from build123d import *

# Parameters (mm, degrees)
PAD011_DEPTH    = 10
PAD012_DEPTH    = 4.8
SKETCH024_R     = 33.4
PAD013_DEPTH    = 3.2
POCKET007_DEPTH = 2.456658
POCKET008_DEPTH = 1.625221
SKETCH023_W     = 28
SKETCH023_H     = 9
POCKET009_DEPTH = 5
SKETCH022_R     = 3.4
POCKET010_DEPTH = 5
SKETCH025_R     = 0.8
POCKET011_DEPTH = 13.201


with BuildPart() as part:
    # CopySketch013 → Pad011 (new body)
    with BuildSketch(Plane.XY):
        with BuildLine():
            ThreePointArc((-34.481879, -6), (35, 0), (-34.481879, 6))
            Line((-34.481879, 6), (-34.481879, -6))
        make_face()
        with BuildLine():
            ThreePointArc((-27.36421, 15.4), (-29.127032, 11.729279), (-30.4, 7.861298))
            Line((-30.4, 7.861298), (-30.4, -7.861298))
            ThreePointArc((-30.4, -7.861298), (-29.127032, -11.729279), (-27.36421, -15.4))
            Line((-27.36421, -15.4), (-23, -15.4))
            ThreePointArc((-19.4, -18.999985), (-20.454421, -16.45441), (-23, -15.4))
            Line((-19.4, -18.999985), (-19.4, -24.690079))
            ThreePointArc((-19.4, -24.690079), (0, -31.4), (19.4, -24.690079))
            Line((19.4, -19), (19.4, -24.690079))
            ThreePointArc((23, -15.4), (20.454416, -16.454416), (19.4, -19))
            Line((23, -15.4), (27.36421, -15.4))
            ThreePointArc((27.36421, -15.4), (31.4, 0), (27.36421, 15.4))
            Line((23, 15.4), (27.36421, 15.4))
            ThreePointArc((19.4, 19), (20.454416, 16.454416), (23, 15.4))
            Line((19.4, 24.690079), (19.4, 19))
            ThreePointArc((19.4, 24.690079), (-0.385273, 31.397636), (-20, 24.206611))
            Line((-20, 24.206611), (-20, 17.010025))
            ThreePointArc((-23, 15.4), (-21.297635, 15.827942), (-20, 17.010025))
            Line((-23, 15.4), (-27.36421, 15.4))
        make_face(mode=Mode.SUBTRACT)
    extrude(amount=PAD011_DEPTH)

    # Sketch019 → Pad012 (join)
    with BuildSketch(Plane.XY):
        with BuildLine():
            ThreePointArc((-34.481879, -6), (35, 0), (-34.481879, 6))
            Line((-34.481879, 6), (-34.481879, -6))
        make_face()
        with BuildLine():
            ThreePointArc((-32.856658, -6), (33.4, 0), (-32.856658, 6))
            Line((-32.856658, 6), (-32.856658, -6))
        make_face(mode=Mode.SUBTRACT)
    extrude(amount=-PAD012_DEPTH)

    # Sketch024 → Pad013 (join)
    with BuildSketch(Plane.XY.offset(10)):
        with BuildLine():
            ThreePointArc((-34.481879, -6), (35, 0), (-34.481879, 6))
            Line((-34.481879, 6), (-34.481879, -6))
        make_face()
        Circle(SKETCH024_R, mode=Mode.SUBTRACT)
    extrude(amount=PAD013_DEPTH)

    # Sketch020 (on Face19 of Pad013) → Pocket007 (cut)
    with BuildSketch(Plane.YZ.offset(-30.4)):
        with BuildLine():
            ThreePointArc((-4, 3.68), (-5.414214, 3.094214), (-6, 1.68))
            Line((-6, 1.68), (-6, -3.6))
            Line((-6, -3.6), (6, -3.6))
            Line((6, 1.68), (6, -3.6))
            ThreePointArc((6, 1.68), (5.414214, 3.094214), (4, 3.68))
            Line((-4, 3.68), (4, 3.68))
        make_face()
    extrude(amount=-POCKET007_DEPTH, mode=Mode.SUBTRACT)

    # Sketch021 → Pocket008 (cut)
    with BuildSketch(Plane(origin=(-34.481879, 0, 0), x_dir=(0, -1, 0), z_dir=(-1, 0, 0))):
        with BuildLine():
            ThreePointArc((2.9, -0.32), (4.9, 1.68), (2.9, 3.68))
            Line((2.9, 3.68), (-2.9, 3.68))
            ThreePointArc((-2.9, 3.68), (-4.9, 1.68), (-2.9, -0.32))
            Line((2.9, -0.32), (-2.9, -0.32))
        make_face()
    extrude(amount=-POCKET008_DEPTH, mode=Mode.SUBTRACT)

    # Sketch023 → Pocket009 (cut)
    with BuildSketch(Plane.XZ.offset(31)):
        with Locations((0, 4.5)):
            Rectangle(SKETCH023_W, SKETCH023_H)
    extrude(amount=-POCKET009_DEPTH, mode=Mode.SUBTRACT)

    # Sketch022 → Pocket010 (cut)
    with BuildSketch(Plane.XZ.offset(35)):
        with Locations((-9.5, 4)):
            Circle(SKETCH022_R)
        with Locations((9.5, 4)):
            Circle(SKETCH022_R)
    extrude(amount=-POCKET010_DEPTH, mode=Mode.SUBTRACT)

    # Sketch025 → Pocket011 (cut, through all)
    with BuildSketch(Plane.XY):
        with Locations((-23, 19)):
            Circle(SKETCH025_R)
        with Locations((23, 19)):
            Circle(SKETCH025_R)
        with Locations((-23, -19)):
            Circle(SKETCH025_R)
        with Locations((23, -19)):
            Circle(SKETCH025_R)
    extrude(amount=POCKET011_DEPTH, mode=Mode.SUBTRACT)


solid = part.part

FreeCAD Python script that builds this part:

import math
import FreeCAD as App
import Part
import Sketcher
from FreeCAD import Vector

doc = App.newDocument("Part")
body = doc.addObject("PartDesign::Body", "Body")

sketch1 = body.newObject("Sketcher::SketchObject", "Sketch")
sketch1.AttachmentSupport = (doc.getObject("XY_Plane"), [""])
sketch1.MapMode = "FlatFace"
sketch1.addGeometry(Part.ArcOfCircle(Part.Circle(Vector(0, 0, 0), Vector(0, 0, 1), 35), math.radians(-170.12911), math.radians(170.12911)), False)
sketch1.addGeometry(Part.LineSegment(Vector(-34.481879, 6, 0), Vector(-34.481879, -6, 0)), False)
sketch1.addGeometry(Part.ArcOfCircle(Part.Circle(Vector(0.000032, -0.000014, 0), Vector(0, 0, 1), 31.400035), math.radians(150.630115), math.radians(165.501185)), False)
sketch1.addGeometry(Part.LineSegment(Vector(-27.36421, 15.4, 0), Vector(-23, 15.4, 0)), False)
sketch1.addGeometry(Part.ArcOfCircle(Part.Circle(Vector(-23.000001, 19.000002, 0), Vector(0, 0, 1), 3.600002), math.radians(-89.999986), math.radians(-33.557327)), False)
sketch1.addGeometry(Part.LineSegment(Vector(-20, 17.010025, 0), Vector(-20, 24.206611, 0)), False)
sketch1.addGeometry(Part.ArcOfCircle(Part.Circle(Vector(0, -0.000002, 0), Vector(0, 0, 1), 31.400002), math.radians(51.84184), math.radians(129.564216)), False)
sketch1.addGeometry(Part.LineSegment(Vector(19.4, 24.690079, 0), Vector(19.4, 19, 0)), False)
sketch1.addGeometry(Part.ArcOfCircle(Part.Circle(Vector(23.000001, 19.000001, 0), Vector(0, 0, 1), 3.600001), math.radians(-179.999978), math.radians(-90.000022)), False)
sketch1.addGeometry(Part.LineSegment(Vector(23, 15.4, 0), Vector(27.36421, 15.4, 0)), False)
sketch1.addGeometry(Part.ArcOfCircle(Part.Circle(Vector(0.000001, 0, 0), Vector(0, 0, 1), 31.399999), math.radians(-29.369892), math.radians(29.369892)), False)
sketch1.addGeometry(Part.LineSegment(Vector(27.36421, -15.4, 0), Vector(23, -15.4, 0)), False)
sketch1.addGeometry(Part.ArcOfCircle(Part.Circle(Vector(23.000001, -19.000001, 0), Vector(0, 0, 1), 3.600001), math.radians(90.000022), math.radians(179.999978)), False)
sketch1.addGeometry(Part.LineSegment(Vector(19.4, -19, 0), Vector(19.4, -24.690079, 0)), False)
sketch1.addGeometry(Part.ArcOfCircle(Part.Circle(Vector(0, 0, 0), Vector(0, 0, 1), 31.4), math.radians(-128.158162), math.radians(-51.841838)), False)
sketch1.addGeometry(Part.LineSegment(Vector(-19.4, -24.690079, 0), Vector(-19.4, -18.999985, 0)), False)
sketch1.addGeometry(Part.ArcOfCircle(Part.Circle(Vector(-23, -19, 0), Vector(0, 0, 1), 3.6), math.radians(0.000234), math.radians(90.000005)), False)
sketch1.addGeometry(Part.LineSegment(Vector(-23, -15.4, 0), Vector(-27.36421, -15.4, 0)), False)
sketch1.addGeometry(Part.ArcOfCircle(Part.Circle(Vector(0.000032, 0.000014, 0), Vector(0, 0, 1), 31.400035), math.radians(-165.501185), math.radians(-150.630115)), False)
sketch1.addGeometry(Part.LineSegment(Vector(-30.4, -7.861298, 0), Vector(-30.4, 7.861298, 0)), False)
sketch1.addConstraint(Sketcher.Constraint("Coincident", 0, 1, 1, 2))
sketch1.addConstraint(Sketcher.Constraint("Coincident", 1, 1, 0, 2))
sketch1.addConstraint(Sketcher.Constraint("Coincident", 2, 1, 3, 1))
sketch1.addConstraint(Sketcher.Constraint("Tangent", 3, 2, 4, 1))
sketch1.addConstraint(Sketcher.Constraint("Coincident", 4, 2, 5, 1))
sketch1.addConstraint(Sketcher.Constraint("Coincident", 5, 2, 6, 2))
sketch1.addConstraint(Sketcher.Constraint("Coincident", 6, 1, 7, 1))
sketch1.addConstraint(Sketcher.Constraint("Tangent", 7, 2, 8, 1))
sketch1.addConstraint(Sketcher.Constraint("Tangent", 8, 2, 9, 1))
sketch1.addConstraint(Sketcher.Constraint("Coincident", 9, 2, 10, 2))
sketch1.addConstraint(Sketcher.Constraint("Coincident", 10, 1, 11, 1))
sketch1.addConstraint(Sketcher.Constraint("Tangent", 11, 2, 12, 1))
sketch1.addConstraint(Sketcher.Constraint("Tangent", 12, 2, 13, 1))
sketch1.addConstraint(Sketcher.Constraint("Coincident", 13, 2, 14, 2))
sketch1.addConstraint(Sketcher.Constraint("Coincident", 14, 1, 15, 1))
sketch1.addConstraint(Sketcher.Constraint("Coincident", 15, 2, 16, 1))
sketch1.addConstraint(Sketcher.Constraint("Tangent", 16, 2, 17, 1))
sketch1.addConstraint(Sketcher.Constraint("Coincident", 17, 2, 18, 2))
sketch1.addConstraint(Sketcher.Constraint("Coincident", 18, 1, 19, 1))
sketch1.addConstraint(Sketcher.Constraint("Coincident", 19, 2, 2, 2))
sketch1.addConstraint(Sketcher.Constraint("Vertical", 1))
sketch1.addConstraint(Sketcher.Constraint("Horizontal", 3))
sketch1.addConstraint(Sketcher.Constraint("Vertical", 5))
sketch1.addConstraint(Sketcher.Constraint("Vertical", 7))
sketch1.addConstraint(Sketcher.Constraint("Horizontal", 9))
sketch1.addConstraint(Sketcher.Constraint("Horizontal", 11))
sketch1.addConstraint(Sketcher.Constraint("Vertical", 13))
sketch1.addConstraint(Sketcher.Constraint("Vertical", 15))
sketch1.addConstraint(Sketcher.Constraint("Horizontal", 17))
sketch1.addConstraint(Sketcher.Constraint("Vertical", 19))
sketch1.addConstraint(Sketcher.Constraint("Coincident", 0, 3, -1, 1))
sketch1.addConstraint(Sketcher.Constraint("Coincident", 6, 3, -1, 1))
sketch1.addConstraint(Sketcher.Constraint("Coincident", 10, 3, -1, 1))
sketch1.addConstraint(Sketcher.Constraint("Coincident", 14, 3, -1, 1))
sketch1.addConstraint(Sketcher.Constraint("Equal", 4, 8))
sketch1.addConstraint(Sketcher.Constraint("Equal", 8, 12))
sketch1.addConstraint(Sketcher.Constraint("Equal", 10, 14))
sketch1.addConstraint(Sketcher.Constraint("Equal", 12, 16))
sketch1.addConstraint(Sketcher.Constraint("Equal", 2, 18))
sketch1.addConstraint(Sketcher.Constraint("Symmetric", 4, 3, 12, 3, -1, 1))
sketch1.addConstraint(Sketcher.Constraint("Symmetric", 8, 3, 16, 3, -1, 1))
sketch1.addConstraint(Sketcher.Constraint("Symmetric", 4, 3, 8, 3, -2))
sketch1.addConstraint(Sketcher.Constraint("Symmetric", 2, 3, 18, 3, -1))
sketch1.addConstraint(Sketcher.Constraint("Equal", 3, 9))
sketch1.addConstraint(Sketcher.Constraint("Equal", 7, 13))
sketch1.addConstraint(Sketcher.Constraint("Radius", 0, 35.0))
sketch1.addConstraint(Sketcher.Constraint("Radius", 4, 3.600002))
sketch1.addConstraint(Sketcher.Constraint("Radius", 6, 31.400002))
sketch1.addConstraint(Sketcher.Constraint("DistanceY", 1, 2, 1, 1, 12.0))
sketch1.addConstraint(Sketcher.Constraint("DistanceX", 4, 3, -1, 1, 23.000001))
sketch1.addConstraint(Sketcher.Constraint("DistanceY", -1, 1, 4, 3, 19.000002))
sketch1.addConstraint(Sketcher.Constraint("DistanceX", 4, 2, -1, 1, 20.0))
sketch1.addConstraint(Sketcher.Constraint("DistanceX", 18, 1, -1, 1, 30.4))
sketch1.addConstraint(Sketcher.Constraint("Radius", 2, 31.400035))
sketch1.addConstraint(Sketcher.Constraint("DistanceY", 16, 3, 18, 1, 11.138702))
sketch1.addConstraint(Sketcher.Constraint("DistanceY", 15, 1, 15, 2, 5.690094))
pad1 = body.newObject("PartDesign::Pad", "Pad")
pad1.Profile = sketch1
pad1.Length = 10

sketch2 = body.newObject("Sketcher::SketchObject", "Sketch001")
sketch2.AttachmentSupport = (doc.getObject("XY_Plane"), [""])
sketch2.MapMode = "FlatFace"
sketch2.addGeometry(Part.ArcOfCircle(Part.Circle(Vector(0, 0, 0), Vector(0, 0, 1), 35), math.radians(-170.12911), math.radians(170.12911)), False)
sketch2.addGeometry(Part.LineSegment(Vector(-34.481879, 6, 0), Vector(-34.481879, -6, 0)), False)
sketch2.addGeometry(Part.ArcOfCircle(Part.Circle(Vector(0, 0, 0), Vector(0, 0, 1), 33.4), math.radians(-169.651167), math.radians(169.651167)), False)
sketch2.addGeometry(Part.LineSegment(Vector(-32.856658, -6, 0), Vector(-32.856658, 6, 0)), False)
sketch2.addConstraint(Sketcher.Constraint("Coincident", 0, 1, 1, 2))
sketch2.addConstraint(Sketcher.Constraint("Coincident", 1, 1, 0, 2))
sketch2.addConstraint(Sketcher.Constraint("Coincident", 2, 1, 3, 1))
sketch2.addConstraint(Sketcher.Constraint("Coincident", 3, 2, 2, 2))
sketch2.addConstraint(Sketcher.Constraint("Vertical", 1))
sketch2.addConstraint(Sketcher.Constraint("Vertical", 3))
sketch2.addConstraint(Sketcher.Constraint("Coincident", 0, 3, -1, 1))
sketch2.addConstraint(Sketcher.Constraint("Coincident", 2, 3, -1, 1))
sketch2.addConstraint(Sketcher.Constraint("Horizontal", 0, 1, 2, 1))
sketch2.addConstraint(Sketcher.Constraint("Radius", 0, 35.0))
sketch2.addConstraint(Sketcher.Constraint("Radius", 2, 33.4))
sketch2.addConstraint(Sketcher.Constraint("DistanceY", 1, 2, 1, 1, 12.0))
pad2 = body.newObject("PartDesign::Pad", "Pad001")
pad2.Profile = sketch2
pad2.Length = 4.8
pad2.Reversed = True

sketch3 = body.newObject("Sketcher::SketchObject", "Sketch002")
sketch3.AttachmentSupport = (doc.getObject("XY_Plane"), [""])
sketch3.MapMode = "FlatFace"
sketch3.AttachmentOffset = App.Placement(Vector(0, 0, 10), App.Rotation())
sketch3.addGeometry(Part.ArcOfCircle(Part.Circle(Vector(0, 0, 0), Vector(0, 0, 1), 35), math.radians(-170.12911), math.radians(170.12911)), False)
sketch3.addGeometry(Part.LineSegment(Vector(-34.481879, 6, 0), Vector(-34.481879, -6, 0)), False)
sketch3.addGeometry(Part.Circle(Vector(0, 0, 0), Vector(0, 0, 1), 33.4), False)
sketch3.addConstraint(Sketcher.Constraint("Coincident", 0, 1, 1, 2))
sketch3.addConstraint(Sketcher.Constraint("Coincident", 1, 1, 0, 2))
sketch3.addConstraint(Sketcher.Constraint("Vertical", 1))
sketch3.addConstraint(Sketcher.Constraint("Coincident", 0, 3, -1, 1))
sketch3.addConstraint(Sketcher.Constraint("Coincident", 2, 3, -1, 1))
sketch3.addConstraint(Sketcher.Constraint("Radius", 0, 35.0))
sketch3.addConstraint(Sketcher.Constraint("Diameter", 2, 66.8))
sketch3.addConstraint(Sketcher.Constraint("DistanceY", 1, 2, 1, 1, 12.0))
pad3 = body.newObject("PartDesign::Pad", "Pad002")
pad3.Profile = sketch3
pad3.Length = 3.2

sketch4 = body.newObject("Sketcher::SketchObject", "Sketch003")
sketch4.AttachmentSupport = (doc.getObject("YZ_Plane"), [""])
sketch4.MapMode = "FlatFace"
sketch4.AttachmentOffset = App.Placement(Vector(0, 0, -30.4), App.Rotation())
sketch4.addGeometry(Part.ArcOfCircle(Part.Circle(Vector(-4.000001, 1.680001, 0), Vector(0, 0, 1), 1.999999), math.radians(89.999957), math.radians(180.000043)), False)
sketch4.addGeometry(Part.LineSegment(Vector(-6, 1.68, 0), Vector(-6, -3.6, 0)), False)
sketch4.addGeometry(Part.LineSegment(Vector(-6, -3.6, 0), Vector(6, -3.6, 0)), False)
sketch4.addGeometry(Part.LineSegment(Vector(6, -3.6, 0), Vector(6, 1.68, 0)), False)
sketch4.addGeometry(Part.ArcOfCircle(Part.Circle(Vector(4.000001, 1.680001, 0), Vector(0, 0, 1), 1.999999), math.radians(-0.000043), math.radians(90.000043)), False)
sketch4.addGeometry(Part.LineSegment(Vector(4, 3.68, 0), Vector(-4, 3.68, 0)), False)
sketch4.addConstraint(Sketcher.Constraint("Tangent", 0, 2, 1, 1))
sketch4.addConstraint(Sketcher.Constraint("Coincident", 1, 2, 2, 1))
sketch4.addConstraint(Sketcher.Constraint("Coincident", 2, 2, 3, 1))
sketch4.addConstraint(Sketcher.Constraint("Tangent", 3, 2, 4, 1))
sketch4.addConstraint(Sketcher.Constraint("Tangent", 4, 2, 5, 1))
sketch4.addConstraint(Sketcher.Constraint("Tangent", 5, 2, 0, 1))
sketch4.addConstraint(Sketcher.Constraint("Vertical", 1))
sketch4.addConstraint(Sketcher.Constraint("Horizontal", 2))
sketch4.addConstraint(Sketcher.Constraint("Vertical", 3))
sketch4.addConstraint(Sketcher.Constraint("Horizontal", 5))
sketch4.addConstraint(Sketcher.Constraint("Equal", 0, 4))
sketch4.addConstraint(Sketcher.Constraint("Radius", 0, 1.999999))
sketch4.addConstraint(Sketcher.Constraint("DistanceX", 2, 1, 2, 2, 12.0))
sketch4.addConstraint(Sketcher.Constraint("DistanceX", 0, 3, -1, 1, 4.000001))
sketch4.addConstraint(Sketcher.Constraint("DistanceY", 1, 2, 1, 1, 5.28))
sketch4.addConstraint(Sketcher.Constraint("DistanceY", 1, 2, -1, 1, 3.6))
pocket1 = body.newObject("PartDesign::Pocket", "Pocket")
pocket1.Profile = sketch4
pocket1.Length = 2.456658

sketch5 = body.newObject("Sketcher::SketchObject", "Sketch004")
sketch5.AttachmentSupport = (doc.getObject("YZ_Plane"), [""])
sketch5.MapMode = "FlatFace"
sketch5.AttachmentOffset = App.Placement(Vector(0, 0, -34.481879), App.Rotation())
sketch5.addGeometry(Part.ArcOfCircle(Part.Circle(Vector(-2.9, 1.68, 0), Vector(0, 0, 1), 2), math.radians(90), math.radians(270)), False)
sketch5.addGeometry(Part.LineSegment(Vector(-2.9, 3.68, 0), Vector(2.9, 3.68, 0)), False)
sketch5.addGeometry(Part.ArcOfCircle(Part.Circle(Vector(2.9, 1.68, 0), Vector(0, 0, 1), 2), math.radians(-90), math.radians(90)), False)
sketch5.addGeometry(Part.LineSegment(Vector(2.9, -0.32, 0), Vector(-2.9, -0.32, 0)), False)
sketch5.addConstraint(Sketcher.Constraint("Tangent", 0, 1, 1, 1))
sketch5.addConstraint(Sketcher.Constraint("Tangent", 1, 2, 2, 2))
sketch5.addConstraint(Sketcher.Constraint("Tangent", 2, 1, 3, 1))
sketch5.addConstraint(Sketcher.Constraint("Tangent", 3, 2, 0, 2))
sketch5.addConstraint(Sketcher.Constraint("Horizontal", 1))
sketch5.addConstraint(Sketcher.Constraint("Horizontal", 3))
sketch5.addConstraint(Sketcher.Constraint("Radius", 0, 2.0))
sketch5.addConstraint(Sketcher.Constraint("DistanceX", 1, 1, 1, 2, 5.8))
sketch5.addConstraint(Sketcher.Constraint("DistanceX", 0, 3, -1, 1, 2.9))
sketch5.addConstraint(Sketcher.Constraint("DistanceY", -1, 1, 0, 3, 1.68))
pocket2 = body.newObject("PartDesign::Pocket", "Pocket001")
pocket2.Profile = sketch5
pocket2.Length = 1.625221
pocket2.Reversed = True

sketch6 = body.newObject("Sketcher::SketchObject", "Sketch005")
sketch6.AttachmentSupport = (doc.getObject("XZ_Plane"), [""])
sketch6.MapMode = "FlatFace"
sketch6.AttachmentOffset = App.Placement(Vector(0, 0, 31), App.Rotation())
sketch6.addGeometry(Part.LineSegment(Vector(-14, 9, 0), Vector(-14, 0, 0)), False)
sketch6.addGeometry(Part.LineSegment(Vector(-14, 0, 0), Vector(14, 0, 0)), False)
sketch6.addGeometry(Part.LineSegment(Vector(14, 0, 0), Vector(14, 9, 0)), False)
sketch6.addGeometry(Part.LineSegment(Vector(14, 9, 0), Vector(-14, 9, 0)), False)
sketch6.addConstraint(Sketcher.Constraint("Coincident", 0, 2, 1, 1))
sketch6.addConstraint(Sketcher.Constraint("Coincident", 1, 2, 2, 1))
sketch6.addConstraint(Sketcher.Constraint("Coincident", 2, 2, 3, 1))
sketch6.addConstraint(Sketcher.Constraint("Coincident", 3, 2, 0, 1))
sketch6.addConstraint(Sketcher.Constraint("Vertical", 0))
sketch6.addConstraint(Sketcher.Constraint("Horizontal", 1))
sketch6.addConstraint(Sketcher.Constraint("Vertical", 2))
sketch6.addConstraint(Sketcher.Constraint("Horizontal", 3))
sketch6.addConstraint(Sketcher.Constraint("Symmetric", 0, 2, 1, 2, -1, 1))
sketch6.addConstraint(Sketcher.Constraint("DistanceX", 1, 1, 1, 2, 28.0))
sketch6.addConstraint(Sketcher.Constraint("DistanceY", 0, 2, 0, 1, 9.0))
pocket3 = body.newObject("PartDesign::Pocket", "Pocket002")
pocket3.Profile = sketch6
pocket3.Length = 5

sketch7 = body.newObject("Sketcher::SketchObject", "Sketch006")
sketch7.AttachmentSupport = (doc.getObject("XZ_Plane"), [""])
sketch7.MapMode = "FlatFace"
sketch7.AttachmentOffset = App.Placement(Vector(0, 0, 35), App.Rotation())
sketch7.addGeometry(Part.Circle(Vector(-9.5, 4, 0), Vector(0, 0, 1), 3.4), False)
sketch7.addGeometry(Part.Circle(Vector(9.5, 4, 0), Vector(0, 0, 1), 3.4), False)
sketch7.addConstraint(Sketcher.Constraint("Equal", 0, 1))
sketch7.addConstraint(Sketcher.Constraint("Symmetric", 0, 3, 1, 3, -2))
sketch7.addConstraint(Sketcher.Constraint("Diameter", 0, 6.8))
sketch7.addConstraint(Sketcher.Constraint("DistanceY", -1, 1, 0, 3, 4.0))
sketch7.addConstraint(Sketcher.Constraint("DistanceX", 0, 3, 1, 3, 19.0))
pocket4 = body.newObject("PartDesign::Pocket", "Pocket003")
pocket4.Profile = sketch7
pocket4.Length = 5

sketch8 = body.newObject("Sketcher::SketchObject", "Sketch007")
sketch8.AttachmentSupport = (doc.getObject("XY_Plane"), [""])
sketch8.MapMode = "FlatFace"
sketch8.addGeometry(Part.Circle(Vector(-23, 19, 0), Vector(0, 0, 1), 0.8), False)
sketch8.addGeometry(Part.Circle(Vector(23, 19, 0), Vector(0, 0, 1), 0.8), False)
sketch8.addGeometry(Part.Circle(Vector(-23, -19, 0), Vector(0, 0, 1), 0.8), False)
sketch8.addGeometry(Part.Circle(Vector(23, -19, 0), Vector(0, 0, 1), 0.8), False)
sketch8.addConstraint(Sketcher.Constraint("Equal", 0, 1))
sketch8.addConstraint(Sketcher.Constraint("Equal", 1, 2))
sketch8.addConstraint(Sketcher.Constraint("Equal", 2, 3))
sketch8.addConstraint(Sketcher.Constraint("Symmetric", 1, 3, 2, 3, -1, 1))
sketch8.addConstraint(Sketcher.Constraint("Symmetric", 0, 3, 3, 3, -1, 1))
sketch8.addConstraint(Sketcher.Constraint("Symmetric", 0, 3, 1, 3, -2))
sketch8.addConstraint(Sketcher.Constraint("Diameter", 0, 1.6))
sketch8.addConstraint(Sketcher.Constraint("DistanceX", 0, 3, -1, 1, 23.0))
sketch8.addConstraint(Sketcher.Constraint("DistanceY", -1, 1, 0, 3, 19.0))
pocket5 = body.newObject("PartDesign::Pocket", "Pocket004")
pocket5.Profile = sketch8
pocket5.Type = "ThroughAll"
pocket5.Reversed = True

doc.recompute()
